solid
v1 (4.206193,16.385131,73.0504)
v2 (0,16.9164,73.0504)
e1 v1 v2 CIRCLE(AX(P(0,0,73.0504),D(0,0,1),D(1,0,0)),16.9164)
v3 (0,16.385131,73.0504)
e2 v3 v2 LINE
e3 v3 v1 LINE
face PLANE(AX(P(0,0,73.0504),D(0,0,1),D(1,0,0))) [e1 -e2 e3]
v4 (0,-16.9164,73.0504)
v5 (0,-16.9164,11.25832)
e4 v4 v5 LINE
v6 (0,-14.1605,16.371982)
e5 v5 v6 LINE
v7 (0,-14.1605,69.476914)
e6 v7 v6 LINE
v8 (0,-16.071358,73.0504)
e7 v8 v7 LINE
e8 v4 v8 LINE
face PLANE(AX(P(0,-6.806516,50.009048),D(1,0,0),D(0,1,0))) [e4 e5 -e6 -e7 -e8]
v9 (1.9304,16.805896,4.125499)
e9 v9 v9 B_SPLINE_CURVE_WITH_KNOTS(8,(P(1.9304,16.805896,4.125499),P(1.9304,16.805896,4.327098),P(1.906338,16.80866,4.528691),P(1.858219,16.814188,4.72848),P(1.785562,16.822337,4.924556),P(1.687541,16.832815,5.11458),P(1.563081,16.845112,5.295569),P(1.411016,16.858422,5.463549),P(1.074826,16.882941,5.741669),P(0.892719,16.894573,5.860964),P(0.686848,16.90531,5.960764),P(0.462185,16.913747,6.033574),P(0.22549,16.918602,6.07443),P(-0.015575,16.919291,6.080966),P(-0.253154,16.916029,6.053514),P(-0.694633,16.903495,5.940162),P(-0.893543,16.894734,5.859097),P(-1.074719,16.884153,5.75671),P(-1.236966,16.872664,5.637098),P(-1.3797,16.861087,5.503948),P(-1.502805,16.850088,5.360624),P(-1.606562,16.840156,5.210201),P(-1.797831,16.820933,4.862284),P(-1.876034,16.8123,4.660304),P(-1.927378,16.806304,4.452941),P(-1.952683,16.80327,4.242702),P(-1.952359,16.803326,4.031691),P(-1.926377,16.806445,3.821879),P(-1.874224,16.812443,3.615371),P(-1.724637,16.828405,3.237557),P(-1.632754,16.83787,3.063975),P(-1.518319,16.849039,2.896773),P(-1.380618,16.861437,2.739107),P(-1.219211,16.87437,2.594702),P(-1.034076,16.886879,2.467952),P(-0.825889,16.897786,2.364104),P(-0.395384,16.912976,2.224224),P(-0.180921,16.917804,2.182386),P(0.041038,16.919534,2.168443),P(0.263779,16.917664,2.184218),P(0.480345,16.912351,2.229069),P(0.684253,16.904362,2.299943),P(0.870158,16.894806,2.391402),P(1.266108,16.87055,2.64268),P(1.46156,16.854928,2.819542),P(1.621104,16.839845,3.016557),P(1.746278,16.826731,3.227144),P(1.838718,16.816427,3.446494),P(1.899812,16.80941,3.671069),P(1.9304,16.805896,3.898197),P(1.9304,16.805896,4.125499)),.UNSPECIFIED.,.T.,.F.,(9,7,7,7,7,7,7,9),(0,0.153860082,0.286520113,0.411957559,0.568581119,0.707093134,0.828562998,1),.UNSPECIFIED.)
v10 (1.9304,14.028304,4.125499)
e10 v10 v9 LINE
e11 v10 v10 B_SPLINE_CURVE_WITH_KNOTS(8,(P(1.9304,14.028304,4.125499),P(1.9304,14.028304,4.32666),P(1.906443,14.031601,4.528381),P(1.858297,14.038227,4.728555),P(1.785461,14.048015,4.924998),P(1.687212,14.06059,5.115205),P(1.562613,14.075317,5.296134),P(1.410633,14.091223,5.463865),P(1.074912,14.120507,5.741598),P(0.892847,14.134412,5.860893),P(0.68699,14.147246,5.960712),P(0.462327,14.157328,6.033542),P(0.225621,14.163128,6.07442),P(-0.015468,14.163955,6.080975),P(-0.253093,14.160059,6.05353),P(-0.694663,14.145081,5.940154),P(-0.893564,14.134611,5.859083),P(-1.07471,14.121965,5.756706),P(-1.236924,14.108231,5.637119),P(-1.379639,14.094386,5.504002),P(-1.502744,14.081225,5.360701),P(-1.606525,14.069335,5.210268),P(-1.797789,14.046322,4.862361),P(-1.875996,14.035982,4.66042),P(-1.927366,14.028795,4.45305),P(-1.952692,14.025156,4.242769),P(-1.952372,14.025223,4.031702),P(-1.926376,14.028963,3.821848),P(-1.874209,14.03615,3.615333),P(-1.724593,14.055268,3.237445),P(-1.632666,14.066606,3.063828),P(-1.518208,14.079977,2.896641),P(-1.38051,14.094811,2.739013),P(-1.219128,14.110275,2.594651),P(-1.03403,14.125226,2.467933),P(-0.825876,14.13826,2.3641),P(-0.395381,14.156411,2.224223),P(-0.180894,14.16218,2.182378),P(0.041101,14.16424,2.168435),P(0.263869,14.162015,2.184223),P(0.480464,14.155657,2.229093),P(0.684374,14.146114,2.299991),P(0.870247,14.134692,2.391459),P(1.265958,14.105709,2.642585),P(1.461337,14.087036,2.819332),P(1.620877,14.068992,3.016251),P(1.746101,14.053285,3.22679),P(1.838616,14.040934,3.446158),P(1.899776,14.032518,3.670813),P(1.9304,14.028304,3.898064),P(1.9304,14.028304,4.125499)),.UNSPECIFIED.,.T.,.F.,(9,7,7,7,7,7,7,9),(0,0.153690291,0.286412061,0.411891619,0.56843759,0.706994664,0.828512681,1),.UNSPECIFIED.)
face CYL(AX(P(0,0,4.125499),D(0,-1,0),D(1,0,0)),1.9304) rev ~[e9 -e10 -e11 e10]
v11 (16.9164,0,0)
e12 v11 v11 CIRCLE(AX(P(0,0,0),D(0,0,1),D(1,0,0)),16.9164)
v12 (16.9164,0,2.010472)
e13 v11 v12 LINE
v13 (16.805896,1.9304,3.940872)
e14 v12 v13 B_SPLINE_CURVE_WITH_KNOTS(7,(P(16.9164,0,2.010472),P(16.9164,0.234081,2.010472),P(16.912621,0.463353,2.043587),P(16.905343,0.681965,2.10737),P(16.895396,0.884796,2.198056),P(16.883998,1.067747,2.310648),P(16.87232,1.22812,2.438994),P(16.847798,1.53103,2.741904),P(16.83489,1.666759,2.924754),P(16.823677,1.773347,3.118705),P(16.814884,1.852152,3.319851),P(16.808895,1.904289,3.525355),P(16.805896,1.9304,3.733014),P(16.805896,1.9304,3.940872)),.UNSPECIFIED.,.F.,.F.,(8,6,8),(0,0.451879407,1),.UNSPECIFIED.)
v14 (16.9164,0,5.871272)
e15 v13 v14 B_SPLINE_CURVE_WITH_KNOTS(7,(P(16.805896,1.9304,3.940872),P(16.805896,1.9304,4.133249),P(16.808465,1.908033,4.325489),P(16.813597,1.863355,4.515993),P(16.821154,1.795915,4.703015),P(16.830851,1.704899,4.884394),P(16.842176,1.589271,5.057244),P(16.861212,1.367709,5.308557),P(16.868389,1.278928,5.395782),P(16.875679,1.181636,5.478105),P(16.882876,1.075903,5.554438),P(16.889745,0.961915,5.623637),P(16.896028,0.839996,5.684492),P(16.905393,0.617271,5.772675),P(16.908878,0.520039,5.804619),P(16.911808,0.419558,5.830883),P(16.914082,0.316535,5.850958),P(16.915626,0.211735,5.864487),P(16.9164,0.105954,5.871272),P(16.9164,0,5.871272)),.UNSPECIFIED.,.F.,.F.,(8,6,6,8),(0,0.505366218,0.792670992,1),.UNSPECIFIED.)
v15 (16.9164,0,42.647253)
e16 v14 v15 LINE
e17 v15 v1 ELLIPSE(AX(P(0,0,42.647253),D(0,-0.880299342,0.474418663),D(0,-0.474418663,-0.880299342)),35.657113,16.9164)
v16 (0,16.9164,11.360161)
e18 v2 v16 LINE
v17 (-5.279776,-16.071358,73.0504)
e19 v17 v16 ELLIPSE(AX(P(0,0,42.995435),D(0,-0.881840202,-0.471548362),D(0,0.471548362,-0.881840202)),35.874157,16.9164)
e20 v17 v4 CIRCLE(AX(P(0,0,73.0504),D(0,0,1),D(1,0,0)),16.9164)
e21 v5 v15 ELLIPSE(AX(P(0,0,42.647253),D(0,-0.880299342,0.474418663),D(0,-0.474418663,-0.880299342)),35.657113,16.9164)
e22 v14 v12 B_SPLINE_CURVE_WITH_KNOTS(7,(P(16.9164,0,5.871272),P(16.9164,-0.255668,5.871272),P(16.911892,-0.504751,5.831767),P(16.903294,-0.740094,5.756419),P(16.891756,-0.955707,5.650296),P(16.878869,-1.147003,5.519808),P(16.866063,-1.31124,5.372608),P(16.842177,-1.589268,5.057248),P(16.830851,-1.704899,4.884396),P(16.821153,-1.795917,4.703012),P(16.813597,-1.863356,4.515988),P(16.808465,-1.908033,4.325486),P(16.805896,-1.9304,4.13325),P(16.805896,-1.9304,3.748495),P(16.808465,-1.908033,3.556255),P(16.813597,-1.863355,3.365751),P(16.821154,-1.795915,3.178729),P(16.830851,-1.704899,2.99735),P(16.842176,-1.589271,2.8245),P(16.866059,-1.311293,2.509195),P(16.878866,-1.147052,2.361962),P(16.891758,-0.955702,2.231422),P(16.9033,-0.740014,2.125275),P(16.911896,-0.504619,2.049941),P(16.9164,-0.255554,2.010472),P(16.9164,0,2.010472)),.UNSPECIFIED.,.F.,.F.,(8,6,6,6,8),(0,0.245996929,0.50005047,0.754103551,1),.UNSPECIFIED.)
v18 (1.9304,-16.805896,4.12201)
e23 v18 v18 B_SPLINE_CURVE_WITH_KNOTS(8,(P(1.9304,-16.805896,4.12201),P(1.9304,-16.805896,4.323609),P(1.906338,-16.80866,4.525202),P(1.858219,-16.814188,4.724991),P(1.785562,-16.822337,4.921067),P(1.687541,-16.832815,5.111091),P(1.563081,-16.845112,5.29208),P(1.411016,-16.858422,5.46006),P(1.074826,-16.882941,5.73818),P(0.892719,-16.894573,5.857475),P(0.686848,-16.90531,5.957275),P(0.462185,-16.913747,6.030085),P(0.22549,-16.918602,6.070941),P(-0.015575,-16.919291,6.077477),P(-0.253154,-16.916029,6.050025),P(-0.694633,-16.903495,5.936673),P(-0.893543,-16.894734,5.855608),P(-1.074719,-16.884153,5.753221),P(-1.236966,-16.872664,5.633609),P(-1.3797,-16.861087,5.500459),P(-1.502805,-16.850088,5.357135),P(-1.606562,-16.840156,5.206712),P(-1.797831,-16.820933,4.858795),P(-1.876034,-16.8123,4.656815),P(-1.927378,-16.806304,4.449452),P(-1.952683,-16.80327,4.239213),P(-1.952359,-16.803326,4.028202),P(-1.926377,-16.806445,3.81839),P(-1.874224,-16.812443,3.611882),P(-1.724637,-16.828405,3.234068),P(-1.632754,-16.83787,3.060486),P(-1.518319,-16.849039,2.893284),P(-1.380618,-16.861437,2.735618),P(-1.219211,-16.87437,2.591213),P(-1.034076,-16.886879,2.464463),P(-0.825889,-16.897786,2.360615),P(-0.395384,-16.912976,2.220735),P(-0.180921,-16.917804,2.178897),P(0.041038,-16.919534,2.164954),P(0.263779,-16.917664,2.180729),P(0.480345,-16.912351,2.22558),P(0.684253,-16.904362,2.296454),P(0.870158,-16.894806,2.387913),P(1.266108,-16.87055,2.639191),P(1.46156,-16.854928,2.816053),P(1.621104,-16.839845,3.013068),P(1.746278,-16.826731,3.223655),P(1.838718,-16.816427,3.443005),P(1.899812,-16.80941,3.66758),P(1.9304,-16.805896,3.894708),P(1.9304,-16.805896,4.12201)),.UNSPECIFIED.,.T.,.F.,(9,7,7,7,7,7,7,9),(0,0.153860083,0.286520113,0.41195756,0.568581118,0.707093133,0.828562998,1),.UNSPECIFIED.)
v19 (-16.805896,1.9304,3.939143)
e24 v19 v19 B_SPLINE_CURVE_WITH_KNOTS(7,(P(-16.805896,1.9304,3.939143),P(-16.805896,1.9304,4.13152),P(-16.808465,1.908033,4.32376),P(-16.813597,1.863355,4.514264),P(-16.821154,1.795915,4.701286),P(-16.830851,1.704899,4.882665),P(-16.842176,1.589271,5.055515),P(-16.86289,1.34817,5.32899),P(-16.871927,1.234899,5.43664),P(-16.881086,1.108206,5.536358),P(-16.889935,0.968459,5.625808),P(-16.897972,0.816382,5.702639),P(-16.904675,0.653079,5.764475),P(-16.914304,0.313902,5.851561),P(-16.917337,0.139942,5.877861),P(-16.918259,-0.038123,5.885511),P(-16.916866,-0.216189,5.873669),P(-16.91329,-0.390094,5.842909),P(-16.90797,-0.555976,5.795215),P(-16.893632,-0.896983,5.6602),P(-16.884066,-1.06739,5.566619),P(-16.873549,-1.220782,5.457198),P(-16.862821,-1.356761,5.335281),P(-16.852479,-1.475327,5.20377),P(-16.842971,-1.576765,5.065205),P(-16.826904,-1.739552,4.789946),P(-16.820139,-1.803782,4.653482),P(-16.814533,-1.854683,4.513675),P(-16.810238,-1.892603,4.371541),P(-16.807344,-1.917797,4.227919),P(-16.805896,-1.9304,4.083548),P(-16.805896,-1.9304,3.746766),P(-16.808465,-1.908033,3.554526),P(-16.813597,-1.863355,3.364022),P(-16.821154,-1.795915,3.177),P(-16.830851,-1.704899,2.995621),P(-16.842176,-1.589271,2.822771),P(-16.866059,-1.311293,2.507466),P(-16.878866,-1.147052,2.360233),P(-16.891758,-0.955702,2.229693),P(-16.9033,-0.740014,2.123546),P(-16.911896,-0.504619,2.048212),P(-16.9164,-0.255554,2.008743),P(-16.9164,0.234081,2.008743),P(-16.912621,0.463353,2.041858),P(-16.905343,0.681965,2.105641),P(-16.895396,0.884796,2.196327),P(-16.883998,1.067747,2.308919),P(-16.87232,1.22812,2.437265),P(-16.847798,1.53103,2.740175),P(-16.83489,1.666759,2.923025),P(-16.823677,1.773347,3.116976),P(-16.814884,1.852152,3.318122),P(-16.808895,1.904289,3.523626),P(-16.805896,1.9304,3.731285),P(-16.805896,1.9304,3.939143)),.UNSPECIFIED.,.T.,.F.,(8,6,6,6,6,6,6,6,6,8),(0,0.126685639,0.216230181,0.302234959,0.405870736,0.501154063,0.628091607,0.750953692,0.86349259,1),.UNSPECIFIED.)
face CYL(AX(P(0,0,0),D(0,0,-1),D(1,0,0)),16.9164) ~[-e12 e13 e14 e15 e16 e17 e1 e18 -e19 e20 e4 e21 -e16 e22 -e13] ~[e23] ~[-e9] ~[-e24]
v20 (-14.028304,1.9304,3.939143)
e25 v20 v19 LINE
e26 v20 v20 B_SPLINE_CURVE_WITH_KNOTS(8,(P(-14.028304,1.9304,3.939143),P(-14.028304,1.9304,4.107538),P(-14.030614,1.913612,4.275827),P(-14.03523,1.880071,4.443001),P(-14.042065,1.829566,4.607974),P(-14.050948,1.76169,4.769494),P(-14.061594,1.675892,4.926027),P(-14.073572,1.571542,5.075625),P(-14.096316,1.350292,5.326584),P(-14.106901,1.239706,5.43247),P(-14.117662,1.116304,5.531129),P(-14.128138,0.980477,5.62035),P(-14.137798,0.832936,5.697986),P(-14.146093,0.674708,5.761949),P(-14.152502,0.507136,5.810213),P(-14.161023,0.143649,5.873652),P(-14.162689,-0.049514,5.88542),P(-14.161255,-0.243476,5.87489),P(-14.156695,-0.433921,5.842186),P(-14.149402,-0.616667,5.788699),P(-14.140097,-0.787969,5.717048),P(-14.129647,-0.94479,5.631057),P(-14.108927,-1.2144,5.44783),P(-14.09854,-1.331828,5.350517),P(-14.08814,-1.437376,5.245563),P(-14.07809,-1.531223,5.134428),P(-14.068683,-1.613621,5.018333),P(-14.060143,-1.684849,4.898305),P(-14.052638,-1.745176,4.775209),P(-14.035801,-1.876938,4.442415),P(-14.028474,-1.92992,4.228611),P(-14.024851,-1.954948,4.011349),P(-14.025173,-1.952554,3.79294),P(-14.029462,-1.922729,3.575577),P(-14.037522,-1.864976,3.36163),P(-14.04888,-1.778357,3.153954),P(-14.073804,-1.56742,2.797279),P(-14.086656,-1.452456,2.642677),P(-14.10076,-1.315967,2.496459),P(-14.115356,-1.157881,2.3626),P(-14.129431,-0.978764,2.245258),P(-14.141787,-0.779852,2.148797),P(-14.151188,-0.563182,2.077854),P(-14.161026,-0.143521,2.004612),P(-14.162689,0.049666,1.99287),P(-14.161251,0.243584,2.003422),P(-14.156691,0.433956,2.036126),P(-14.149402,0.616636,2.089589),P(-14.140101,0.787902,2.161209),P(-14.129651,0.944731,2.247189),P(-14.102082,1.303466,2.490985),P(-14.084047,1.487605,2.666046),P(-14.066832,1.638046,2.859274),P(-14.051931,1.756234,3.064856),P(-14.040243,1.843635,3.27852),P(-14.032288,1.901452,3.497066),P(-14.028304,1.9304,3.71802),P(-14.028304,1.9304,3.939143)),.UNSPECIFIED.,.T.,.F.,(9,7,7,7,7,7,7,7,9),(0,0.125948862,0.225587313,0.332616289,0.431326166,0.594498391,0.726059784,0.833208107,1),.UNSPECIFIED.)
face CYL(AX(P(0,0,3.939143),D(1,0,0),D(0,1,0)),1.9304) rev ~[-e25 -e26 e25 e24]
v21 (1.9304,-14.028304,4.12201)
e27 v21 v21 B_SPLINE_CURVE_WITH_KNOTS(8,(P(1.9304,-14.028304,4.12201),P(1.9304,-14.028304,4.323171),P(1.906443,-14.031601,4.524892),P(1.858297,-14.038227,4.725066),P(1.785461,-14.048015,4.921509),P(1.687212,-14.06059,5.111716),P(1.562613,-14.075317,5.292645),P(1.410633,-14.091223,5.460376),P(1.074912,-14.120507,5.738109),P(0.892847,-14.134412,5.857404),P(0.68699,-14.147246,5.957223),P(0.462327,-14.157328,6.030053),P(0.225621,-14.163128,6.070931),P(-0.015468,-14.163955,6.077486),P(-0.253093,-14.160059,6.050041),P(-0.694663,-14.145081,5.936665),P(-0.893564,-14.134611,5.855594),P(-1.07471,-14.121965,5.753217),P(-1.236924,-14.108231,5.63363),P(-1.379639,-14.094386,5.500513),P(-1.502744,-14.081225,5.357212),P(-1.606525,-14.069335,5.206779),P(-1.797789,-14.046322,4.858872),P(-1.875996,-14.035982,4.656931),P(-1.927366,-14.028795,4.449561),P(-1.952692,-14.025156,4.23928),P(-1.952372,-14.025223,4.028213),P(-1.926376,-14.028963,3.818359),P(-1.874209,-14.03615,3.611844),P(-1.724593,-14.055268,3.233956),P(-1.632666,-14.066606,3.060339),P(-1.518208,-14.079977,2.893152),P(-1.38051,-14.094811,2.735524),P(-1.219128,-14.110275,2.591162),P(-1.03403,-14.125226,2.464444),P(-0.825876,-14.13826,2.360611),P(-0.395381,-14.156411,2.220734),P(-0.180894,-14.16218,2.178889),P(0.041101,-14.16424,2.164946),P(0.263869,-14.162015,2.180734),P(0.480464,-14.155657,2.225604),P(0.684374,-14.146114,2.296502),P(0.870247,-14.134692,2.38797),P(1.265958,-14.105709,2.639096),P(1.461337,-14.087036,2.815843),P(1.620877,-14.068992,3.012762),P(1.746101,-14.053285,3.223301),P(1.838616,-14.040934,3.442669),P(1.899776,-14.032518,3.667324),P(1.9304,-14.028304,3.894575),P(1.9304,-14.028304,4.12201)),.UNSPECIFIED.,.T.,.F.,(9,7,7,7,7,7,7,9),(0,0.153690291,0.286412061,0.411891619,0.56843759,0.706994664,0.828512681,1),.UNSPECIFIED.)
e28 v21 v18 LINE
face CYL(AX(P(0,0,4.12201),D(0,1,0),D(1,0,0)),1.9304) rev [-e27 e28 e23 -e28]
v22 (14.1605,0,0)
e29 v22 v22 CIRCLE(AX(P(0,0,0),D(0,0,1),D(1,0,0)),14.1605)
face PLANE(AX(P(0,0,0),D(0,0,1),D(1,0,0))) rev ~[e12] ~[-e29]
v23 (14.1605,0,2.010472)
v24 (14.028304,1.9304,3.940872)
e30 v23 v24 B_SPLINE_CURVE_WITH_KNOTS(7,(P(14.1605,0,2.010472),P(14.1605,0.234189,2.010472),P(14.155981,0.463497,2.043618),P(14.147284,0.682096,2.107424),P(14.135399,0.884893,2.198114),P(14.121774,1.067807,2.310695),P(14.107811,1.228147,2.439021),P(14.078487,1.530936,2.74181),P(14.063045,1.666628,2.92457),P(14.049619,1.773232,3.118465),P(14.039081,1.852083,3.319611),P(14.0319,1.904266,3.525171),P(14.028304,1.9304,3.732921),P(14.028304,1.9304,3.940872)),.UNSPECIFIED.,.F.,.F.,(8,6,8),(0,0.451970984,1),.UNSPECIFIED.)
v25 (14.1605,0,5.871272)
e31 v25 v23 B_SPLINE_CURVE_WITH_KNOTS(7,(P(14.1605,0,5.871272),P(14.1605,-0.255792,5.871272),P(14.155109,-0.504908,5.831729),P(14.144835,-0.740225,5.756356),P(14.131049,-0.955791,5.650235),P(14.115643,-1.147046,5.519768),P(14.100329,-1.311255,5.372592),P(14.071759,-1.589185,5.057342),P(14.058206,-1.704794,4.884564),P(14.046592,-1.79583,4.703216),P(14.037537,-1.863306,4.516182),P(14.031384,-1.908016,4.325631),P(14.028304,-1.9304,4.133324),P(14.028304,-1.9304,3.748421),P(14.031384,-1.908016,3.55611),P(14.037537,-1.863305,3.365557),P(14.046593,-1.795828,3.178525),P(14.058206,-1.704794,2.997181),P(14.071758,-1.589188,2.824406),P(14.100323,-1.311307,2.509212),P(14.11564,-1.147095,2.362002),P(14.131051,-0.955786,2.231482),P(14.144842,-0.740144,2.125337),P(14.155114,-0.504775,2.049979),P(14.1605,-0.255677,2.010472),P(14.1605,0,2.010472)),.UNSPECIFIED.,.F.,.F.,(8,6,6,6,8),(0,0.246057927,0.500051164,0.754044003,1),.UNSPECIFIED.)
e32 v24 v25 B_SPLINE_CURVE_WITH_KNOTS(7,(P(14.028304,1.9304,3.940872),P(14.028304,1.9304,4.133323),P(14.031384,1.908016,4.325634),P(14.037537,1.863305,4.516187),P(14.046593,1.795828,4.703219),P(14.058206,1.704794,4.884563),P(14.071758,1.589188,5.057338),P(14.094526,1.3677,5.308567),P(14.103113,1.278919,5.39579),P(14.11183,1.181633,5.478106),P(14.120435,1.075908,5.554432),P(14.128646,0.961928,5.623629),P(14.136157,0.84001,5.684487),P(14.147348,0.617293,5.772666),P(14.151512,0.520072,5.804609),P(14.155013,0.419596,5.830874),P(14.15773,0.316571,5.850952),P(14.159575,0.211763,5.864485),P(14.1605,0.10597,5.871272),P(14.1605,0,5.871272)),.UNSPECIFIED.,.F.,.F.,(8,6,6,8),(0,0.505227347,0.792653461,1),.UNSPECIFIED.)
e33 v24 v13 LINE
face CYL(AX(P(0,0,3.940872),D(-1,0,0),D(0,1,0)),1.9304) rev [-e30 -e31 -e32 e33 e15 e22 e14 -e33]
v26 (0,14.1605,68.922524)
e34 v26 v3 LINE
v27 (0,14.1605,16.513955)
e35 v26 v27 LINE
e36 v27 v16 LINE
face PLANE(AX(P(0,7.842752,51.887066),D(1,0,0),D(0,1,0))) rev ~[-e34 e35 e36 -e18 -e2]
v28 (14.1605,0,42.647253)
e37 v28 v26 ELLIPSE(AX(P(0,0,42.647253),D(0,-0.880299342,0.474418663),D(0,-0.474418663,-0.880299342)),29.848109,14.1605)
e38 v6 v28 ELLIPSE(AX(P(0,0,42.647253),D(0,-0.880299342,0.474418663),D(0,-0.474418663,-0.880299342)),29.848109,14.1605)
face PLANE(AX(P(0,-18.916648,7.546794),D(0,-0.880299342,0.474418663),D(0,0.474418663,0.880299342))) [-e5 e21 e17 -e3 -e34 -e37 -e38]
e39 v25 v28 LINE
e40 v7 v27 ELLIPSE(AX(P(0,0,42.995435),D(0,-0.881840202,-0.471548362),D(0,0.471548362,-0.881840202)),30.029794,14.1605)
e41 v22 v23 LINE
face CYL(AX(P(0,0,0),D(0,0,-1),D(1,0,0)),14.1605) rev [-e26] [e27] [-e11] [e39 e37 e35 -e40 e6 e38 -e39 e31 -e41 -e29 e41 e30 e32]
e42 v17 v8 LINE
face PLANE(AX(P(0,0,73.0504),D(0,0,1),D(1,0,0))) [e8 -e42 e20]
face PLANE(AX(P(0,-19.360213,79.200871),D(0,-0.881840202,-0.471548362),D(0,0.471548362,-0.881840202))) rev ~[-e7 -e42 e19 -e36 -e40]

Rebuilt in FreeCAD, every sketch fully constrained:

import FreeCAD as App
import Part
import Sketcher
from FreeCAD import Vector
Q = App.Units.Quantity

doc = App.newDocument("Part")
body = doc.addObject("PartDesign::Body", "Body")

# Sketch on XY plane
sketch1 = body.newObject("Sketcher::SketchObject", "Sketch")
sketch1.AttachmentSupport = (doc.getObject("XY_Plane"), [""])
sketch1.MapMode = "FlatFace"
sketch1.addGeometry(Part.Circle(Vector(0, 0, 0), Vector(0, 0, 1), 17), False)
sketch1.addGeometry(Part.Circle(Vector(0, 0, 0), Vector(0, 0, 1), 14), False)
sketch1.addConstraint(Sketcher.Constraint("Coincident", 0, 3, -1, 1))
sketch1.addConstraint(Sketcher.Constraint("Coincident", 1, 3, -1, 1))
sketch1.addConstraint(Sketcher.Constraint("Diameter", 0, Q("1.332 in")))
sketch1.addConstraint(Sketcher.Constraint("Diameter", 1, Q("1.115 in")))
pad1 = body.newObject("PartDesign::Pad", "Pad")
pad1.Profile = sketch1
pad1.Length = Q("2.876 in")

# Sketch on YZ plane
sketch2 = body.newObject("Sketcher::SketchObject", "Sketch001")
sketch2.AttachmentSupport = (doc.getObject("YZ_Plane"), [""])
sketch2.MapMode = "FlatFace"
sketch2.addGeometry(Part.LineSegment(Vector(-18, 78, 0), Vector(-19, 8, 0)), False)
sketch2.addGeometry(Part.LineSegment(Vector(-19, 8, 0), Vector(19, 78, 0)), False)
sketch2.addGeometry(Part.LineSegment(Vector(19, 78, 0), Vector(-18, 78, 0)), False)
sketch2.addConstraint(Sketcher.Constraint("Coincident", 0, 2, 1, 1))
sketch2.addConstraint(Sketcher.Constraint("Coincident", 1, 2, 2, 1))
sketch2.addConstraint(Sketcher.Constraint("Coincident", 2, 2, 0, 1))
sketch2.addConstraint(Sketcher.Constraint("Horizontal", 2))
sketch2.addConstraint(Sketcher.Constraint("DistanceX", 2, 2, 2, 1, Q("37.546245 mm")))
sketch2.addConstraint(Sketcher.Constraint("DistanceX", -1, 1, 1, 2, Q("19.261749 mm")))
sketch2.addConstraint(Sketcher.Constraint("DistanceY", -1, 1, 1, 2, Q("78.388058 mm")))
sketch2.addConstraint(Sketcher.Constraint("DistanceX", 0, 2, 2, 2, Q("0.632152 mm")))
sketch2.addConstraint(Sketcher.Constraint("Distance", 0, Q("70.844084 mm")))
pocket1 = body.newObject("PartDesign::Pocket", "Pocket")
pocket1.Profile = sketch2
pocket1.Length = Q("2.3 in")
pocket1.Reversed = True

# Sketch on YZ plane
sketch3 = body.newObject("Sketcher::SketchObject", "Sketch002")
sketch3.AttachmentSupport = (doc.getObject("YZ_Plane"), [""])
sketch3.MapMode = "FlatFace"
sketch3.addGeometry(Part.LineSegment(Vector(-19, 79, 0), Vector(18, 9, 0)), False)
sketch3.addGeometry(Part.LineSegment(Vector(18, 9, 0), Vector(24, 79, 0)), False)
sketch3.addGeometry(Part.LineSegment(Vector(24, 79, 0), Vector(-19, 79, 0)), False)
sketch3.addConstraint(Sketcher.Constraint("Coincident", 0, 2, 1, 1))
sketch3.addConstraint(Sketcher.Constraint("Coincident", 1, 2, 2, 1))
sketch3.addConstraint(Sketcher.Constraint("Coincident", 2, 2, 0, 1))
sketch3.addConstraint(Sketcher.Constraint("Horizontal", 2))
sketch3.addConstraint(Sketcher.Constraint("DistanceX", 2, 2, 2, 1, Q("42.900471 mm")))
sketch3.addConstraint(Sketcher.Constraint("DistanceX", -1, 1, 1, 2, Q("23.540258 mm")))
sketch3.addConstraint(Sketcher.Constraint("DistanceY", -1, 1, 1, 2, Q("79.200871 mm")))
sketch3.addConstraint(Sketcher.Constraint("DistanceX", 2, 2, 0, 2, Q("37.560229 mm")))
sketch3.addConstraint(Sketcher.Constraint("Distance", 0, Q("79.652973 mm")))
pocket2 = body.newObject("PartDesign::Pocket", "Pocket001")
pocket2.Profile = sketch3
pocket2.Length = Q("1 in")

# Sketch on YZ plane
sketch4 = body.newObject("Sketcher::SketchObject", "Sketch003")
sketch4.AttachmentSupport = (doc.getObject("YZ_Plane"), [""])
sketch4.MapMode = "FlatFace"
sketch4.addGeometry(Part.Circle(Vector(0, 3.9, 0), Vector(0, 0, 1), 1.9), False)
sketch4.addConstraint(Sketcher.Constraint("PointOnObject", 0, 3, -2))
sketch4.addConstraint(Sketcher.Constraint("Diameter", 0, Q("0.152 in")))
sketch4.addConstraint(Sketcher.Constraint("DistanceY", -1, 1, 0, 3, Q("3.939143 mm")))
pocket3 = body.newObject("PartDesign::Pocket", "Pocket002")
pocket3.Profile = sketch4
pocket3.Length = Q("1 in")

# Sketch on YZ plane
sketch5 = body.newObject("Sketcher::SketchObject", "Sketch004")
sketch5.AttachmentSupport = (doc.getObject("YZ_Plane"), [""])
sketch5.MapMode = "FlatFace"
sketch5.addGeometry(Part.Circle(Vector(0, 3.9, 0), Vector(0, 0, 1), 1.9), False)
sketch5.addConstraint(Sketcher.Constraint("PointOnObject", 0, 3, -2))
sketch5.addConstraint(Sketcher.Constraint("Diameter", 0, Q("0.152 in")))
sketch5.addConstraint(Sketcher.Constraint("DistanceY", -1, 1, 0, 3, Q("3.940872 mm")))
pocket4 = body.newObject("PartDesign::Pocket", "Pocket003")
pocket4.Profile = sketch5
pocket4.Length = Q("1.41 in")
pocket4.Reversed = True

# Sketch on XZ plane
sketch6 = body.newObject("Sketcher::SketchObject", "Sketch005")
sketch6.AttachmentSupport = (doc.getObject("XZ_Plane"), [""])
sketch6.MapMode = "FlatFace"
sketch6.addGeometry(Part.Circle(Vector(0, 4.1, 0), Vector(0, 0, 1), 1.9), False)
sketch6.addConstraint(Sketcher.Constraint("PointOnObject", 0, 3, -2))
sketch6.addConstraint(Sketcher.Constraint("Diameter", 0, Q("0.152 in")))
sketch6.addConstraint(Sketcher.Constraint("DistanceY", -1, 1, 0, 3, Q("4.125499 mm")))
pocket5 = body.newObject("PartDesign::Pocket", "Pocket004")
pocket5.Profile = sketch6
pocket5.Length = Q("1 in")

# Sketch on XZ plane
sketch7 = body.newObject("Sketcher::SketchObject", "Sketch006")
sketch7.AttachmentSupport = (doc.getObject("XZ_Plane"), [""])
sketch7.MapMode = "FlatFace"
sketch7.addGeometry(Part.Circle(Vector(0, 4.1, 0), Vector(0, 0, 1), 1.9), False)
sketch7.addConstraint(Sketcher.Constraint("PointOnObject", 0, 3, -2))
sketch7.addConstraint(Sketcher.Constraint("Diameter", 0, Q("0.152 in")))
sketch7.addConstraint(Sketcher.Constraint("DistanceY", -1, 1, 0, 3, Q("4.12201 mm")))
pocket6 = body.newObject("PartDesign::Pocket", "Pocket005")
pocket6.Profile = sketch7
pocket6.Length = Q("1.74 in")
pocket6.Reversed = True

doc.recompute()
